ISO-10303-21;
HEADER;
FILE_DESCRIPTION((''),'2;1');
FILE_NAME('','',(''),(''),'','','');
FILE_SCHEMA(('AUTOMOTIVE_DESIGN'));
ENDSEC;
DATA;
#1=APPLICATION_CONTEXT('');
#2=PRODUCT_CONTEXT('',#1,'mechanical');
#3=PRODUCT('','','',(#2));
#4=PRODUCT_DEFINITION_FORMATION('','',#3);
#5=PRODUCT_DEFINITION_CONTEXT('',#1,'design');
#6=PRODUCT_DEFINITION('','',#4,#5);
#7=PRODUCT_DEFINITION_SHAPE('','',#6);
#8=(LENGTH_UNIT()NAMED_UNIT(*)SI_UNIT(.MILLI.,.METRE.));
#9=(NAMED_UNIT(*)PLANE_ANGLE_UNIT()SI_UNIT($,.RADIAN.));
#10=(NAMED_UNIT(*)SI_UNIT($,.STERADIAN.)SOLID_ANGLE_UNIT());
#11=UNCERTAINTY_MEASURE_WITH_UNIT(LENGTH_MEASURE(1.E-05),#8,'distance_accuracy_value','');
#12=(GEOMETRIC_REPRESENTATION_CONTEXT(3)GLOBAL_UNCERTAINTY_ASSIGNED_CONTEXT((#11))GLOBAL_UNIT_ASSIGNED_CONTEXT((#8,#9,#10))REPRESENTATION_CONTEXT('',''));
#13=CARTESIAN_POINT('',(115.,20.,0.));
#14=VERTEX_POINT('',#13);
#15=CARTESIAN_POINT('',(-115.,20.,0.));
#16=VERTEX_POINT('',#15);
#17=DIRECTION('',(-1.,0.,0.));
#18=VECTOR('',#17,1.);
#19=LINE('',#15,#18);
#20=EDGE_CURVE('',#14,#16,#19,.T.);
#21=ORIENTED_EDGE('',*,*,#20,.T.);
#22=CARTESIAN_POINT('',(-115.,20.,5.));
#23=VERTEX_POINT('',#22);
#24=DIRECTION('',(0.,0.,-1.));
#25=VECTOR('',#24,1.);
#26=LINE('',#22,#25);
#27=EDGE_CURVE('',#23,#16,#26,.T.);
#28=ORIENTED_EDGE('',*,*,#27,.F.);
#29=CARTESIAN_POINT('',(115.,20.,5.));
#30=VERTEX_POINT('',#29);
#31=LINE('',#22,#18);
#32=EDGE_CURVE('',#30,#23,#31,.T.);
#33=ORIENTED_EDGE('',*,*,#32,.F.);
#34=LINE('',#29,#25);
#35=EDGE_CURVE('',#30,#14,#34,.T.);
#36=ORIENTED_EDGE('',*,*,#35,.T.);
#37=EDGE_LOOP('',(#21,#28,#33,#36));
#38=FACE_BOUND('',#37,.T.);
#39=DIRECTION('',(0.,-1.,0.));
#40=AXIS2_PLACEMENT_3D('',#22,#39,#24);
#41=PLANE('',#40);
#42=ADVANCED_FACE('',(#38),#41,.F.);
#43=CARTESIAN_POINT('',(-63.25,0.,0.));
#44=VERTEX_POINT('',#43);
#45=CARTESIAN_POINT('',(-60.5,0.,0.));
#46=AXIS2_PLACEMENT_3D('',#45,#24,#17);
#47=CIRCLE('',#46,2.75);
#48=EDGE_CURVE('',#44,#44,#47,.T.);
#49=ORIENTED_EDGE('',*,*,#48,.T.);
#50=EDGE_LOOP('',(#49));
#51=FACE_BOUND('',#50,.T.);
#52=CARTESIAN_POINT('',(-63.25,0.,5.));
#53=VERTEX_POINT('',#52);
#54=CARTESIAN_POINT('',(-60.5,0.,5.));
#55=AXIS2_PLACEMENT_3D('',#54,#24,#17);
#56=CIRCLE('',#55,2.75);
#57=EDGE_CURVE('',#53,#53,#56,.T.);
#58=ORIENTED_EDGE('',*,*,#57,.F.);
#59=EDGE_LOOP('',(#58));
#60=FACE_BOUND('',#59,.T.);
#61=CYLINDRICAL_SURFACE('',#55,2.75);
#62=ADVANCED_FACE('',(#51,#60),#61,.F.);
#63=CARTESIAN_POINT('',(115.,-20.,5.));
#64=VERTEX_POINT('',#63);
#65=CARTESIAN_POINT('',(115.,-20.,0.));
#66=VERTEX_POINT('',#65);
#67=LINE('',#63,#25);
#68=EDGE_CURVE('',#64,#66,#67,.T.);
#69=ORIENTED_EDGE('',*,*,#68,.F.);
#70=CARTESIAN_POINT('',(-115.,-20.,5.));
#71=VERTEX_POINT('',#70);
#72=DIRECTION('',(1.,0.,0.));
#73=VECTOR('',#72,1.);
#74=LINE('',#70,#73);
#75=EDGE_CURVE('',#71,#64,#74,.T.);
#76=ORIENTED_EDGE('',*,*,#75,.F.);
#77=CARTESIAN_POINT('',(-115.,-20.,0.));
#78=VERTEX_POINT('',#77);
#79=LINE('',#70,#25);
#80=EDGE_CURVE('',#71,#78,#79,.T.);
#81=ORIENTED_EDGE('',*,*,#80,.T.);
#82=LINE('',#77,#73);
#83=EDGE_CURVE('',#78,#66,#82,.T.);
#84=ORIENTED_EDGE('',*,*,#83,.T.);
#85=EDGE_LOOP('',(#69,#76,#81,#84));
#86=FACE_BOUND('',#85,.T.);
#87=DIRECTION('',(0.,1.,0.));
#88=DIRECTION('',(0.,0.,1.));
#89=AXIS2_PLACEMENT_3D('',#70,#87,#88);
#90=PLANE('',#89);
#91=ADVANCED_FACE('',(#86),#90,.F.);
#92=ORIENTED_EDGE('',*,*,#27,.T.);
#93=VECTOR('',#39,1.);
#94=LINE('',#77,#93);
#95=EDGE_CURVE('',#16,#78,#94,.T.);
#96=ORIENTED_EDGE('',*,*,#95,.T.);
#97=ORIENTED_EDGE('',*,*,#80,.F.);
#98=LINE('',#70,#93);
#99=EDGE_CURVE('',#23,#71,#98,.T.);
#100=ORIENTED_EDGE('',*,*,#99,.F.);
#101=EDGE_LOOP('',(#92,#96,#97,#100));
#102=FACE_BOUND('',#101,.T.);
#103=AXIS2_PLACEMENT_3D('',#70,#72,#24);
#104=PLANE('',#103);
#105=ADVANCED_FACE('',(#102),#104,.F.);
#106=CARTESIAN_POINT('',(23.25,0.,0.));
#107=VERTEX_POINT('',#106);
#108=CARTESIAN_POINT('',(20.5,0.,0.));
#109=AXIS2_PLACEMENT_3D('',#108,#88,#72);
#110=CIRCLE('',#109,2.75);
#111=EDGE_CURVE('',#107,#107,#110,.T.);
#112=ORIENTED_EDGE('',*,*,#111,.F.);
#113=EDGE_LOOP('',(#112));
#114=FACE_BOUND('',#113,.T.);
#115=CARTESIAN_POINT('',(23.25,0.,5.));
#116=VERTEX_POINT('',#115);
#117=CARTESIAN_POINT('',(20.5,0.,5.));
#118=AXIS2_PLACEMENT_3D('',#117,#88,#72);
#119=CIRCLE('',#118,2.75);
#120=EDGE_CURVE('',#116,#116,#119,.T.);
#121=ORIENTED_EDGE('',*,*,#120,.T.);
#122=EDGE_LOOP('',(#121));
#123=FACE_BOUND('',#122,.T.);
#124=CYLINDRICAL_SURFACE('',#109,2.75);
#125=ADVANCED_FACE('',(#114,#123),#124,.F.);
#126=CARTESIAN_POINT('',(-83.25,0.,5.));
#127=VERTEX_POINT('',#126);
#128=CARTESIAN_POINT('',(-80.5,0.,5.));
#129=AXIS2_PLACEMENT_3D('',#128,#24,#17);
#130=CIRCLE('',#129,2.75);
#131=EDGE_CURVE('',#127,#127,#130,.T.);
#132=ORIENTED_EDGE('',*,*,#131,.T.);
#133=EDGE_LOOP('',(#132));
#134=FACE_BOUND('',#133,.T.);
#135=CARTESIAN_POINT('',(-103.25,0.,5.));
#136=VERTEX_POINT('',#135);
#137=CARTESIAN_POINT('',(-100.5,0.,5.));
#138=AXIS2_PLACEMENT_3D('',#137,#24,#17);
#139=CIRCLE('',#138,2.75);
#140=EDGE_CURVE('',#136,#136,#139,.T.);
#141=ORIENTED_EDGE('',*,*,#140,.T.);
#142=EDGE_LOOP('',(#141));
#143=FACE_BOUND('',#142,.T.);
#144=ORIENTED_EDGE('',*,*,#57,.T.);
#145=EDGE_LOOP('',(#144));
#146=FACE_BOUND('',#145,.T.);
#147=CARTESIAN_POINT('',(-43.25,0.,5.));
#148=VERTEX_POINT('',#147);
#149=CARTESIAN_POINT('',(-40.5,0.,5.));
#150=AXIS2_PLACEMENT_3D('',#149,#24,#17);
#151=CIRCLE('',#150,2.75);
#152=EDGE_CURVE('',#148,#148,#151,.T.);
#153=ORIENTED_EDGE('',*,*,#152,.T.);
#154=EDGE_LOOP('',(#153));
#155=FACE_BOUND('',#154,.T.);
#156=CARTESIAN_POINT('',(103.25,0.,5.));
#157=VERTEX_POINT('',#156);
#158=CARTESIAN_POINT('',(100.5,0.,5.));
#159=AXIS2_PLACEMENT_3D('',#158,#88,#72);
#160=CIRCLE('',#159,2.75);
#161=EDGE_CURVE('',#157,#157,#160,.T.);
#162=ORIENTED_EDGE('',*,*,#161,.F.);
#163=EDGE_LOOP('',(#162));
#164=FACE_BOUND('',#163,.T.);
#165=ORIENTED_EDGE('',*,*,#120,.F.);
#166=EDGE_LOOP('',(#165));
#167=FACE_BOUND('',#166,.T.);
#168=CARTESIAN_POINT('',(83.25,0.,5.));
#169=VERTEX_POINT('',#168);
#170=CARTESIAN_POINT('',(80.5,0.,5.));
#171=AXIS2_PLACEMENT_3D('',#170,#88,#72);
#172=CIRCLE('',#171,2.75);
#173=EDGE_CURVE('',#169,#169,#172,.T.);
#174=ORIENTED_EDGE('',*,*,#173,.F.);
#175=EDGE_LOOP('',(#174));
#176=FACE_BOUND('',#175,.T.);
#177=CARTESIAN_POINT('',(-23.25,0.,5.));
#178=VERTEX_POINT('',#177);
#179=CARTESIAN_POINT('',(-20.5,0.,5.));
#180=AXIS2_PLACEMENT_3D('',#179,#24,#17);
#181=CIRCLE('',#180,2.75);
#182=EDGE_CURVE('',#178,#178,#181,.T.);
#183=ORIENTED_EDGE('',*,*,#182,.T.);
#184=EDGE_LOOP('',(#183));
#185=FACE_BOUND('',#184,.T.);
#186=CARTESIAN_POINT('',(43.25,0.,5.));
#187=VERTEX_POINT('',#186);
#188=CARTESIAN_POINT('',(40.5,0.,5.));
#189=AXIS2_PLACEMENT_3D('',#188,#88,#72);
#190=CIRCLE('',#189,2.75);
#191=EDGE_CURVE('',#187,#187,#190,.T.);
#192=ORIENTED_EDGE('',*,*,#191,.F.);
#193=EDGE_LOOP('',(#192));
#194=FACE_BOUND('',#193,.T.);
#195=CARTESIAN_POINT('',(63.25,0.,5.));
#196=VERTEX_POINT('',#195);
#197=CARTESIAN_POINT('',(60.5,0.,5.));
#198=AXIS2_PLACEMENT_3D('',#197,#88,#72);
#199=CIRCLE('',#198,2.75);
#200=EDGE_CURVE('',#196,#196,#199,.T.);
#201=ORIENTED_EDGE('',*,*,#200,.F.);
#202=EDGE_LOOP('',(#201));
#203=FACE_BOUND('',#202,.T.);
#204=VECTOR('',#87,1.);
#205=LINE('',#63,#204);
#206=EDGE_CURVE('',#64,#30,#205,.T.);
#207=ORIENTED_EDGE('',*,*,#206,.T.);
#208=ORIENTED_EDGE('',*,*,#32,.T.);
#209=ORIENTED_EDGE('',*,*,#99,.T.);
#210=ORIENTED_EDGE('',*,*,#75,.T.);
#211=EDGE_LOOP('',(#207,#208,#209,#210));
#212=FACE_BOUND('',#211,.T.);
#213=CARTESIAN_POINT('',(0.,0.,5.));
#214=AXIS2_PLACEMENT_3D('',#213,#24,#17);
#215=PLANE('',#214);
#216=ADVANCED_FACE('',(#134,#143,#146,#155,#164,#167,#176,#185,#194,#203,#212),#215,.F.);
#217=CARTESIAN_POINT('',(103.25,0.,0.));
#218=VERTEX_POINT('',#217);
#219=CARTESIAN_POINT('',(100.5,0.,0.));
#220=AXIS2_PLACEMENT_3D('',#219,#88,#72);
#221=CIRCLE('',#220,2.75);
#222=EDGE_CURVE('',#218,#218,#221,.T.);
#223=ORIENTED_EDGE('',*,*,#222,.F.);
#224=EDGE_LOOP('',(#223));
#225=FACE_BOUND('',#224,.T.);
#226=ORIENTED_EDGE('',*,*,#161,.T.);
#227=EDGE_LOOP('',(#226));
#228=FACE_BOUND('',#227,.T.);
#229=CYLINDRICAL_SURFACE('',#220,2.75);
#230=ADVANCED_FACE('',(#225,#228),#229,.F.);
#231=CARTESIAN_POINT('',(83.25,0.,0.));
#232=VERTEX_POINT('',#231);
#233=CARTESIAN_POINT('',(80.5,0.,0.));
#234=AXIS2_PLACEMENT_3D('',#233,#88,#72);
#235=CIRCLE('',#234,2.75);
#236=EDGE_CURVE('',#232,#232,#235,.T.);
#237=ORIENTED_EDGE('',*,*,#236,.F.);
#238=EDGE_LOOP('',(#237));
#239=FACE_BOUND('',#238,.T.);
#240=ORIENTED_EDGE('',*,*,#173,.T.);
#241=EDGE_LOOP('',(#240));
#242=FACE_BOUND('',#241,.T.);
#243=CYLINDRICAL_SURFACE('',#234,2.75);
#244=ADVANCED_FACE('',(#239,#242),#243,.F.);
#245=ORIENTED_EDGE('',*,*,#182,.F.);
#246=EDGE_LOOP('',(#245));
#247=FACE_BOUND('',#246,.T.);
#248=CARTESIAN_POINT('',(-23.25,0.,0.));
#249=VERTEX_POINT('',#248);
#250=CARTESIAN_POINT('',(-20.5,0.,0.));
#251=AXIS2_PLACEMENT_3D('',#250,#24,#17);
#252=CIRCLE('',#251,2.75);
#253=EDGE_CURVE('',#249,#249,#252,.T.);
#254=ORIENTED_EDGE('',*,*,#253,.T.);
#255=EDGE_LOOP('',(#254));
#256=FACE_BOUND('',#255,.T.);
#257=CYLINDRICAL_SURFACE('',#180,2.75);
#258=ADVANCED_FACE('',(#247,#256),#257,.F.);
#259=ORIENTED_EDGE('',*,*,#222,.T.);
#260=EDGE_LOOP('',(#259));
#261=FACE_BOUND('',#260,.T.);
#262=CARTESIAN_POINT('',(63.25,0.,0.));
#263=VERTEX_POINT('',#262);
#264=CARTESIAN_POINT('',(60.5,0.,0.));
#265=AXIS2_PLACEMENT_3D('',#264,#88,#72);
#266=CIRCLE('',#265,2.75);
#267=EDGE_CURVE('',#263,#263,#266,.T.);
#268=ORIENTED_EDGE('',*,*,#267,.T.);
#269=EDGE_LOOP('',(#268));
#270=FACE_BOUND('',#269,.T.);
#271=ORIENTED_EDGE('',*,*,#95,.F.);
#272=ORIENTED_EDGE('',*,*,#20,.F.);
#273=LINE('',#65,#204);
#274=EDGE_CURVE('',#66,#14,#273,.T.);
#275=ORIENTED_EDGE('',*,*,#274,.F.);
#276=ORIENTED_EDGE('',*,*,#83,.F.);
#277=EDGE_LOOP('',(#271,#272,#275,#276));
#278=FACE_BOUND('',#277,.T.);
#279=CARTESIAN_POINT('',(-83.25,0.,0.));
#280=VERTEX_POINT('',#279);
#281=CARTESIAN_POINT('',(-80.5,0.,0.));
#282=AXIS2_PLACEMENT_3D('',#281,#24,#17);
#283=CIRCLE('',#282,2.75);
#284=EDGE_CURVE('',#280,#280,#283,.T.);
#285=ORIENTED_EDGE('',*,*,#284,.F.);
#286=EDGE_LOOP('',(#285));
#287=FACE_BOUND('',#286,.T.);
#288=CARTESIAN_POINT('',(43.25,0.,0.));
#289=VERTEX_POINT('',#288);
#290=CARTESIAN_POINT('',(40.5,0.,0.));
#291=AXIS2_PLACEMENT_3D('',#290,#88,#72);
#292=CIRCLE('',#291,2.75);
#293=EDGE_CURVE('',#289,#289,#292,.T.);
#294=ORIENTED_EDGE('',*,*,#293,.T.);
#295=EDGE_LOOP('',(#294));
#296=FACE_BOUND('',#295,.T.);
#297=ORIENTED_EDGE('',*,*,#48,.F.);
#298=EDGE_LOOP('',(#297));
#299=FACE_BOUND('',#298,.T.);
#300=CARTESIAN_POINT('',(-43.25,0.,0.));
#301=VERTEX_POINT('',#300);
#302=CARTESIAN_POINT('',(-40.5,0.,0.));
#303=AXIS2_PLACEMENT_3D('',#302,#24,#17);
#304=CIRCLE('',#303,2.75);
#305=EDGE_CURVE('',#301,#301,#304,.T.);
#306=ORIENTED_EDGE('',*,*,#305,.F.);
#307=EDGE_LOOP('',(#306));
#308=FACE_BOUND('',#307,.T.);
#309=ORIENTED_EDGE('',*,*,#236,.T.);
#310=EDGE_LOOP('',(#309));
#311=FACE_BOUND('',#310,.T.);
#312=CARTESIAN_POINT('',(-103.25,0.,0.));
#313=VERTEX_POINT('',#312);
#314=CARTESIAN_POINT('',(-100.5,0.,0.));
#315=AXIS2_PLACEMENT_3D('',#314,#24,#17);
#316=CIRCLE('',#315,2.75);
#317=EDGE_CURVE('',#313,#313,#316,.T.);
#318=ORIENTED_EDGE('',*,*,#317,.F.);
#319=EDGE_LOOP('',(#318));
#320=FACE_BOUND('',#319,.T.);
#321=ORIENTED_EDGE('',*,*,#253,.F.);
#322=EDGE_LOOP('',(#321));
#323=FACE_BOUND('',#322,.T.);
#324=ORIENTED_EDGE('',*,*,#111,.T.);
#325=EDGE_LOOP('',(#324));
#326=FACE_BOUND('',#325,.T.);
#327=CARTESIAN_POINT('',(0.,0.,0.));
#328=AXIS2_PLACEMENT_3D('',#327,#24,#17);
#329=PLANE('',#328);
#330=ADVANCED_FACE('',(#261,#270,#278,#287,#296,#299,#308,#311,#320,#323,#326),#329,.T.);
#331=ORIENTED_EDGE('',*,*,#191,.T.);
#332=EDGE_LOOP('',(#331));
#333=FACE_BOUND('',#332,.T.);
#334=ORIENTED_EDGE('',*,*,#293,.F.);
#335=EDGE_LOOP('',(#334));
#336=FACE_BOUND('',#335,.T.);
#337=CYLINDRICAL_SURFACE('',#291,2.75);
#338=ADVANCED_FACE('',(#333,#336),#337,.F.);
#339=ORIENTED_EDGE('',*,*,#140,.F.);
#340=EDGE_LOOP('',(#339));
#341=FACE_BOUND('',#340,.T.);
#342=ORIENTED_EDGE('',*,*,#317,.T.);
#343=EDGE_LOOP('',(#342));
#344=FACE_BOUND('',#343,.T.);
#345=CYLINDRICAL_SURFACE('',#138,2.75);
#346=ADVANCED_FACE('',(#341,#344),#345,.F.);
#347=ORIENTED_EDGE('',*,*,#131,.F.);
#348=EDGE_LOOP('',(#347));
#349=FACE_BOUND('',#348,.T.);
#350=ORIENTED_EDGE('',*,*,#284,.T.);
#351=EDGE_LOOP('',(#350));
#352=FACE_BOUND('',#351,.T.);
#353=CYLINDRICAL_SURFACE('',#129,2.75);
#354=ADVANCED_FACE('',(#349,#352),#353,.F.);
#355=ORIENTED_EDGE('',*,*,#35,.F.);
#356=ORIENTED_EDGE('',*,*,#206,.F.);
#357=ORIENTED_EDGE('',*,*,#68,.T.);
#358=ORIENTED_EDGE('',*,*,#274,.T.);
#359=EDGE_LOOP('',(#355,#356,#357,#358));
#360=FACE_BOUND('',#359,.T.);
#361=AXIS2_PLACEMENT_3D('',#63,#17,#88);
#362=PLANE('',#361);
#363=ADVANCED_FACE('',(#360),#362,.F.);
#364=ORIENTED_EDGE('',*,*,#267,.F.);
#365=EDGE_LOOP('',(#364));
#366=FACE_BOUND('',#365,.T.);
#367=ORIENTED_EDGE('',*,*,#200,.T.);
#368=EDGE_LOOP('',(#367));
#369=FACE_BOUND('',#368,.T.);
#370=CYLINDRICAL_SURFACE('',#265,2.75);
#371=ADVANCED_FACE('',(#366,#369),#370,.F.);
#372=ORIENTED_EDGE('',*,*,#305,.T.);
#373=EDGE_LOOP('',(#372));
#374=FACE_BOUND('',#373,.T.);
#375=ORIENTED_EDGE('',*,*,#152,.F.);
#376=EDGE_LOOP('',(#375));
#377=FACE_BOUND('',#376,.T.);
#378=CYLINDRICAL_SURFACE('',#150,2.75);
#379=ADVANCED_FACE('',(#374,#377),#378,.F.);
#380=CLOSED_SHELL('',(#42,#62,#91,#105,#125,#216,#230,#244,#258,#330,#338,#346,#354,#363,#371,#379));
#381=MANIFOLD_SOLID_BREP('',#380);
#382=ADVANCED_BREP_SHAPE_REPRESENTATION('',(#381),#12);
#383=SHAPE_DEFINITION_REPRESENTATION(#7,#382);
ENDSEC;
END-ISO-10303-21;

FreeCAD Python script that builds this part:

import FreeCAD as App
import Part
import Sketcher
from FreeCAD import Vector
Q = App.Units.Quantity

doc = App.newDocument("Part")
body = doc.addObject("PartDesign::Body", "Body")

# Sketch on XY plane
sketch1 = body.newObject("Sketcher::SketchObject", "Sketch")
sketch1.AttachmentSupport = (doc.getObject("XY_Plane"), [""])
sketch1.MapMode = "FlatFace"
sketch1.addGeometry(Part.LineSegment(Vector(-115, 20, 0), Vector(-115, -20, 0)), False)
sketch1.addGeometry(Part.LineSegment(Vector(-115, -20, 0), Vector(115, -20, 0)), False)
sketch1.addGeometry(Part.LineSegment(Vector(115, -20, 0), Vector(115, 20, 0)), False)
sketch1.addGeometry(Part.LineSegment(Vector(115, 20, 0), Vector(-115, 20, 0)), False)
sketch1.addConstraint(Sketcher.Constraint("Coincident", 0, 2, 1, 1))
sketch1.addConstraint(Sketcher.Constraint("Coincident", 1, 2, 2, 1))
sketch1.addConstraint(Sketcher.Constraint("Coincident", 2, 2, 3, 1))
sketch1.addConstraint(Sketcher.Constraint("Coincident", 3, 2, 0, 1))
sketch1.addConstraint(Sketcher.Constraint("Vertical", 0))
sketch1.addConstraint(Sketcher.Constraint("Horizontal", 1))
sketch1.addConstraint(Sketcher.Constraint("Vertical", 2))
sketch1.addConstraint(Sketcher.Constraint("Horizontal", 3))
sketch1.addConstraint(Sketcher.Constraint("Symmetric", 0, 2, 2, 2, -1, 1))
sketch1.addConstraint(Sketcher.Constraint("DistanceX", 1, 1, 1, 2, Q("230 mm")))
sketch1.addConstraint(Sketcher.Constraint("DistanceY", 0, 2, 0, 1, Q("40 mm")))
pad1 = body.newObject("PartDesign::Pad", "Pad")
pad1.Profile = sketch1
pad1.Length = 5

# Sketch on XY plane
sketch2 = body.newObject("Sketcher::SketchObject", "Sketch001")
sketch2.AttachmentSupport = (doc.getObject("XY_Plane"), [""])
sketch2.MapMode = "FlatFace"
sketch2.AttachmentOffset = App.Placement(Vector(0, 0, 5), App.Rotation())
sketch2.addGeometry(Part.Circle(Vector(20.5, 0, 0), Vector(0, 0, 1), 2.8), False)
sketch2.addConstraint(Sketcher.Constraint("PointOnObject", 0, 3, -1))
sketch2.addConstraint(Sketcher.Constraint("Diameter", 0, Q("5.5 mm")))
sketch2.addConstraint(Sketcher.Constraint("DistanceX", -1, 1, 0, 3, Q("20.5 mm")))
pocket1 = body.newObject("PartDesign::Pocket", "Pocket")
pocket1.Profile = sketch2
pocket1.Type = "ThroughAll"

# Sketch on XY plane
sketch3 = body.newObject("Sketcher::SketchObject", "Sketch002")
sketch3.AttachmentSupport = (doc.getObject("XY_Plane"), [""])
sketch3.MapMode = "FlatFace"
sketch3.addGeometry(Part.Circle(Vector(-20.5, 0, 0), Vector(0, 0, 1), 2.8), False)
sketch3.addConstraint(Sketcher.Constraint("PointOnObject", 0, 3, -1))
sketch3.addConstraint(Sketcher.Constraint("Diameter", 0, Q("5.5 mm")))
sketch3.addConstraint(Sketcher.Constraint("DistanceX", 0, 3, -1, 1, Q("20.5 mm")))
pocket2 = body.newObject("PartDesign::Pocket", "Pocket001")
pocket2.Profile = sketch3
pocket2.Length = 5
pocket2.Reversed = True
doc.recompute()

linearpattern = body.newObject("PartDesign::LinearPattern", "LinearPattern")
linearpattern.Originals = [pocket1]
linearpattern.Direction = (doc.getObject("X_Axis"), [""])
linearpattern.Mode = "offset"
linearpattern.Offset = 20
linearpattern.Occurrences = 5
body.Tip = linearpattern
doc.recompute()

linearpattern2 = body.newObject("PartDesign::LinearPattern", "LinearPattern001")
linearpattern2.Originals = [pocket2]
linearpattern2.Direction = (doc.getObject("X_Axis"), [""])
linearpattern2.Mode = "offset"
linearpattern2.Offset = 20
linearpattern2.Occurrences = 5
linearpattern2.Reversed = True
body.Tip = linearpattern2

doc.recompute()
